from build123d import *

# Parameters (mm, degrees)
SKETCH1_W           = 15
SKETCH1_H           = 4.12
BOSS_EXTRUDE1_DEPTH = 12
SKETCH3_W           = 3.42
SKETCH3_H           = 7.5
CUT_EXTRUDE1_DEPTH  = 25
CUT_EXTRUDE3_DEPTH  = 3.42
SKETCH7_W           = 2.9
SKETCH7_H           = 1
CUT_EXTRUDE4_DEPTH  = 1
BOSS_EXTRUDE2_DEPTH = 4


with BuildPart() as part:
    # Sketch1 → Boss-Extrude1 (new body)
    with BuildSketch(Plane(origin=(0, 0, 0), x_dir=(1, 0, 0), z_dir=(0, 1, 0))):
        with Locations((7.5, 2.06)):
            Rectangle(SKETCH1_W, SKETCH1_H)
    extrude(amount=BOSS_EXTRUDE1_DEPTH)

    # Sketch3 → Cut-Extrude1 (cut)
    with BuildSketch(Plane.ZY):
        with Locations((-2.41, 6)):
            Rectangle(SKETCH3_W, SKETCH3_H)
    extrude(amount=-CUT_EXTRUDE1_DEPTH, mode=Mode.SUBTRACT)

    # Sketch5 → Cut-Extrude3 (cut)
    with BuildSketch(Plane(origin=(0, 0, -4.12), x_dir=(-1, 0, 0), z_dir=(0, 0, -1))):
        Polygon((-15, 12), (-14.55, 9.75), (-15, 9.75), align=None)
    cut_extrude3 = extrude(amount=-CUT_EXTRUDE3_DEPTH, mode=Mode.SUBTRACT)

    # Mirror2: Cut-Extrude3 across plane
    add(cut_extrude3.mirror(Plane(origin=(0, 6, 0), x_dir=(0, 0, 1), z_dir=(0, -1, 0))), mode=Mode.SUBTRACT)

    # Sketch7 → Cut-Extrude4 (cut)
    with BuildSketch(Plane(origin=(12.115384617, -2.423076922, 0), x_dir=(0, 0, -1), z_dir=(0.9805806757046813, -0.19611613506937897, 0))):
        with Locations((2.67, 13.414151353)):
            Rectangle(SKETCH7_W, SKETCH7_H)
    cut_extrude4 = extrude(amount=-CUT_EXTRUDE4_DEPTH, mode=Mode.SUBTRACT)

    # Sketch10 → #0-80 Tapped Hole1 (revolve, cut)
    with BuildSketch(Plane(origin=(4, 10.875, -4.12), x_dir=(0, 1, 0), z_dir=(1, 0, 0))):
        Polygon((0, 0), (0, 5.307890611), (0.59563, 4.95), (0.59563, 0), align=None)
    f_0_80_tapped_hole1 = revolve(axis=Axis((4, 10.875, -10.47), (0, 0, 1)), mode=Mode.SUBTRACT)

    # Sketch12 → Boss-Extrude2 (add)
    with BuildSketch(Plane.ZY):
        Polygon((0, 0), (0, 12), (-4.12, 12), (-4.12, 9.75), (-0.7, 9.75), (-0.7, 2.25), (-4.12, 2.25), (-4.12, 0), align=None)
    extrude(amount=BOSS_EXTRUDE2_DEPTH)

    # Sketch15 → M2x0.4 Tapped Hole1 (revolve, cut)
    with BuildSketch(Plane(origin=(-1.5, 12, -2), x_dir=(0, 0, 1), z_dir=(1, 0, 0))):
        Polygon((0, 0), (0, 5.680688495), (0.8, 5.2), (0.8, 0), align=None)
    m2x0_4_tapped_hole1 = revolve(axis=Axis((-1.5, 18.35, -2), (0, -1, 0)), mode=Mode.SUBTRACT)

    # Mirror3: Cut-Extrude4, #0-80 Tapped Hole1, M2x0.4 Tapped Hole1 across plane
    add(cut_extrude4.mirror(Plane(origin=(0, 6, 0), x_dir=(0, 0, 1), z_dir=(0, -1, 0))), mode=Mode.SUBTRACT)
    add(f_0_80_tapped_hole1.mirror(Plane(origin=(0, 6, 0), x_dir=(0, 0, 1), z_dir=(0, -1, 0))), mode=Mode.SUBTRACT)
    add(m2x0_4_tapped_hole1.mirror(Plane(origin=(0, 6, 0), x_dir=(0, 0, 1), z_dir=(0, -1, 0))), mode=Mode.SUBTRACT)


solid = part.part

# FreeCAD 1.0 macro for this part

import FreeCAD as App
import Part
import Sketcher
Q = App.Units.Quantity


def add_polygon(sketch, points):
    """Adds a closed chain of lines whose ends are joined by coincident constraints."""
    first, n = sketch.GeometryCount, len(points)
    for a, b in zip(points, points[1:] + points[:1]):
        sketch.addGeometry(Part.LineSegment(App.Vector(*a, 0), App.Vector(*b, 0)), False)
    for i in range(n):
        sketch.addConstraint(Sketcher.Constraint("Coincident", first + i, 2, first + (i + 1) % n, 1))

doc = App.newDocument("Part")
body = doc.addObject("PartDesign::Body", "Body")

# Sketch on XZ plane
sketch1 = body.newObject("Sketcher::SketchObject", "Sketch")
sketch1.AttachmentSupport = (doc.getObject("XZ_Plane"), [""])
sketch1.MapMode = "FlatFace"
add_polygon(sketch1, [(0, -4.12), (0, 0), (15, 0), (15, -4.12)])  # lines 0-3
sketch1.addConstraint([
    Sketcher.Constraint("Vertical", 0),
    Sketcher.Constraint("Horizontal", 1),
    Sketcher.Constraint("Vertical", 2),
    Sketcher.Constraint("Horizontal", 3),
    Sketcher.Constraint("Coincident", 0, 2, -1, 1),
    Sketcher.Constraint("DistanceX", 1, 1, 1, 2, Q("15 mm")),
    Sketcher.Constraint("DistanceY", 0, 1, 0, 2, Q("4.12 mm")),
])
pad1 = body.newObject("PartDesign::Pad", "Pad")
pad1.Profile = sketch1
pad1.Length = 12
pad1.Reversed = True

# Sketch on YZ plane
sketch2 = body.newObject("Sketcher::SketchObject", "Sketch001")
sketch2.AttachmentSupport = (doc.getObject("YZ_Plane"), [""])
sketch2.MapMode = "FlatFace"
add_polygon(sketch2, [(9.75, -4.12), (2.25, -4.12), (2.25, -0.7), (9.75, -0.7)])  # lines 0-3
sketch2.addConstraint([
    Sketcher.Constraint("Horizontal", 0),
    Sketcher.Constraint("Vertical", 1),
    Sketcher.Constraint("Horizontal", 2),
    Sketcher.Constraint("Vertical", 3),
    Sketcher.Constraint("DistanceX", 0, 2, 0, 1, Q("7.5 mm")),
    Sketcher.Constraint("DistanceY", 1, 1, 1, 2, Q("3.42 mm")),
    Sketcher.Constraint("DistanceY", 1, 2, -1, 1, Q("0.7 mm")),
    Sketcher.Constraint("DistanceX", -1, 1, 0, 2, Q("2.25 mm")),
])
pocket1 = body.newObject("PartDesign::Pocket", "Pocket")
pocket1.Profile = sketch2
pocket1.Length = 25
pocket1.Reversed = True

# Sketch on XY plane
sketch3 = body.newObject("Sketcher::SketchObject", "Sketch002")
sketch3.AttachmentSupport = (doc.getObject("XY_Plane"), [""])
sketch3.MapMode = "FlatFace"
sketch3.AttachmentOffset = App.Placement(App.Vector(0, 0, -4.12), App.Rotation())
add_polygon(sketch3, [(14.55, 9.75), (15, 12), (15, 9.75)])  # lines 0-2
sketch3.addConstraint([
    Sketcher.Constraint("Vertical", 1),
    Sketcher.Constraint("Horizontal", 2),
    Sketcher.Constraint("DistanceX", -1, 1, 0, 2, Q("15 mm")),
    Sketcher.Constraint("DistanceY", -1, 1, 0, 2, Q("12 mm")),
    Sketcher.Constraint("DistanceX", 2, 2, 2, 1, Q("0.45 mm")),
    Sketcher.Constraint("DistanceY", 1, 2, 1, 1, Q("2.25 mm")),
])
pocket2 = body.newObject("PartDesign::Pocket", "Pocket001")
pocket2.Profile = sketch3
pocket2.Length = 3.42
pocket2.Reversed = True
doc.recompute()

datumplane = body.newObject("PartDesign::Plane", "DatumPlane")
datumplane.AttachmentSupport = (doc.getObject("XZ_Plane"), [""])
datumplane.MapMode = "FlatFace"
datumplane.AttachmentOffset = App.Placement(App.Vector(0, 0, -6), App.Rotation())
mirrored = body.newObject("PartDesign::Mirrored", "Mirrored")
mirrored.Originals = [pocket2]
mirrored.MirrorPlane = (datumplane, [""])
body.Tip = mirrored

# Sketch on an angled plane
sketch4 = body.newObject("Sketcher::SketchObject", "Sketch003")
sketch4.Placement = App.Placement(App.Vector(12.115385, -2.423077, 0), App.Rotation(App.Vector(0, 0, -1), App.Vector(0.196116135, 0.980580676, 0), App.Vector(0.980580676, -0.196116135, 0), "ZXY"))
add_polygon(sketch4, [(1.22, 13.914151), (1.22, 12.914151), (4.12, 12.914151), (4.12, 13.914151)])  # lines 0-3
sketch4.addConstraint([
    Sketcher.Constraint("Vertical", 0),
    Sketcher.Constraint("Horizontal", 1),
    Sketcher.Constraint("Vertical", 2),
    Sketcher.Constraint("Horizontal", 3),
    Sketcher.Constraint("DistanceY", 0, 2, 0, 1, Q("1 mm")),
    Sketcher.Constraint("DistanceX", 1, 1, 1, 2, Q("2.9 mm")),
    Sketcher.Constraint("DistanceX", -1, 1, 0, 2, Q("1.22 mm")),
    Sketcher.Constraint("DistanceY", -1, 1, 0, 2, Q("12.914151 mm")),
])
pocket3 = body.newObject("PartDesign::Pocket", "Pocket002")
pocket3.Profile = sketch4
pocket3.Length = 1

# Sketch on YZ plane
sketch5 = body.newObject("Sketcher::SketchObject", "Sketch004")
sketch5.AttachmentSupport = (doc.getObject("YZ_Plane"), [""])
sketch5.MapMode = "FlatFace"
sketch5.AttachmentOffset = App.Placement(App.Vector(0, 0, 4), App.Rotation())
add_polygon(sketch5, [(10.875, 1.187891), (10.875, -4.12), (11.47063, -4.12), (11.47063, 0.83)])  # lines 0-3
sketch5.addGeometry(Part.LineSegment(App.Vector(10.875, -4.12, 0), App.Vector(10.875, 1.187891, 0)), True)  # axis
sketch5.addConstraint([
    Sketcher.Constraint("Vertical", 0),
    Sketcher.Constraint("Horizontal", 1),
    Sketcher.Constraint("Vertical", 2),
    Sketcher.Constraint("Vertical", 4),
    Sketcher.Constraint("Coincident", 4, 1, 0, 2),
    Sketcher.Constraint("Equal", 0, 4),
    Sketcher.Constraint("Angle", 3, Q("149 deg")),
    Sketcher.Constraint("DistanceY", 2, 1, 2, 2, Q("4.95 mm")),
    Sketcher.Constraint("DistanceY", 0, 2, -1, 1, Q("4.12 mm")),
    Sketcher.Constraint("DistanceX", -1, 1, 0, 2, Q("10.875 mm")),
    Sketcher.Constraint("DistanceX", 1, 1, 1, 2, Q("0.59563 mm")),
])
groove = body.newObject("PartDesign::Groove", "Groove")
groove.Profile = sketch5
groove.ReferenceAxis = (sketch5, ["Axis0"])
groove.Angle = 360

# Sketch on YZ plane
sketch6 = body.newObject("Sketcher::SketchObject", "Sketch005")
sketch6.AttachmentSupport = (doc.getObject("YZ_Plane"), [""])
sketch6.MapMode = "FlatFace"
add_polygon(sketch6, [(0, 0), (12, 0), (12, -4.12), (9.75, -4.12), (9.75, -0.7), (2.25, -0.7), (2.25, -4.12), (0, -4.12)])  # lines 0-7
sketch6.addConstraint([
    Sketcher.Constraint("Horizontal", 0),
    Sketcher.Constraint("Vertical", 1),
    Sketcher.Constraint("Horizontal", 2),
    Sketcher.Constraint("Vertical", 3),
    Sketcher.Constraint("Horizontal", 4),
    Sketcher.Constraint("Vertical", 5),
    Sketcher.Constraint("Horizontal", 6),
    Sketcher.Constraint("Vertical", 7),
    Sketcher.Constraint("Coincident", 7, 2, -1, 1),
    Sketcher.Constraint("Horizontal", 2, 2, 5, 2),
    Sketcher.Constraint("Equal", 2, 6),
    Sketcher.Constraint("DistanceX", 0, 1, 0, 2, Q("12 mm")),
    Sketcher.Constraint("DistanceX", 4, 2, 4, 1, Q("7.5 mm")),
    Sketcher.Constraint("DistanceY", 1, 2, 1, 1, Q("4.12 mm")),
    Sketcher.Constraint("DistanceY", 3, 1, 3, 2, Q("3.42 mm")),
])
pad2 = body.newObject("PartDesign::Pad", "Pad001")
pad2.Profile = sketch6
pad2.Length = 4
pad2.Reversed = True

# Sketch on YZ plane
sketch7 = body.newObject("Sketcher::SketchObject", "Sketch006")
sketch7.AttachmentSupport = (doc.getObject("YZ_Plane"), [""])
sketch7.MapMode = "FlatFace"
sketch7.AttachmentOffset = App.Placement(App.Vector(0, 0, -1.5), App.Rotation())
add_polygon(sketch7, [(6.319312, -2), (12, -2), (12, -1.2), (6.8, -1.2)])  # lines 0-3
sketch7.addGeometry(Part.LineSegment(App.Vector(12, -2, 0), App.Vector(6.319312, -2, 0)), True)  # axis
sketch7.addConstraint([
    Sketcher.Constraint("Horizontal", 0),
    Sketcher.Constraint("Vertical", 1),
    Sketcher.Constraint("Horizontal", 2),
    Sketcher.Constraint("Horizontal", 4),
    Sketcher.Constraint("Coincident", 4, 1, 0, 2),
    Sketcher.Constraint("Equal", 0, 4),
    Sketcher.Constraint("Angle", 3, Q("-121 deg")),
    Sketcher.Constraint("DistanceX", 2, 2, 2, 1, Q("5.2 mm")),
    Sketcher.Constraint("DistanceY", 1, 1, 1, 2, Q("0.8 mm")),
    Sketcher.Constraint("DistanceX", -1, 1, 0, 2, Q("12 mm")),
    Sketcher.Constraint("DistanceY", 0, 2, -1, 1, Q("2 mm")),
])
groove2 = body.newObject("PartDesign::Groove", "Groove001")
groove2.Profile = sketch7
groove2.ReferenceAxis = (sketch7, ["Axis0"])
groove2.Angle = 360
doc.recompute()

datumplane2 = body.newObject("PartDesign::Plane", "DatumPlane001")
datumplane2.AttachmentSupport = (doc.getObject("XZ_Plane"), [""])
datumplane2.MapMode = "FlatFace"
datumplane2.AttachmentOffset = App.Placement(App.Vector(0, 0, -6), App.Rotation())
mirrored2 = body.newObject("PartDesign::Mirrored", "Mirrored001")
mirrored2.Originals = [pocket3, groove, groove2]
mirrored2.MirrorPlane = (datumplane2, [""])
body.Tip = mirrored2

doc.recompute()
